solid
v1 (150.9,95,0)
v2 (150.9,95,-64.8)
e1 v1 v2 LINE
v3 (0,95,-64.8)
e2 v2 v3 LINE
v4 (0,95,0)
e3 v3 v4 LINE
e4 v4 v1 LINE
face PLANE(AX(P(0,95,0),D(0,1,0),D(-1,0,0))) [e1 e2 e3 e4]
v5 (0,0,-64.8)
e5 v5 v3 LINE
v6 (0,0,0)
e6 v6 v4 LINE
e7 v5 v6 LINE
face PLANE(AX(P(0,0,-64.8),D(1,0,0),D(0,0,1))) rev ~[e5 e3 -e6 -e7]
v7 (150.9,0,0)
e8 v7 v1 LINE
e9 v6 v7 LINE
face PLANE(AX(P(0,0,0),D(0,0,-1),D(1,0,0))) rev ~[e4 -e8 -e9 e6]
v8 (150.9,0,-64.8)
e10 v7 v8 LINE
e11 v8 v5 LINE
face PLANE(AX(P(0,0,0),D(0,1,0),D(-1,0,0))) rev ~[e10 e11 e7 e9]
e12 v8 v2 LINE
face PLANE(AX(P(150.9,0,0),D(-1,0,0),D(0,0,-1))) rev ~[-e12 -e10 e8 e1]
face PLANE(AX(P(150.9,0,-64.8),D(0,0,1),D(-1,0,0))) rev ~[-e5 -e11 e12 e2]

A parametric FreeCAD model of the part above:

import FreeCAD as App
import Part
import Sketcher
from FreeCAD import Vector

doc = App.newDocument("Part")
body = doc.addObject("PartDesign::Body", "Body")

sketch1 = body.newObject("Sketcher::SketchObject", "Sketch")
sketch1.AttachmentSupport = (doc.getObject("XZ_Plane"), [""])
sketch1.MapMode = "FlatFace"
sketch1.addGeometry([
    Part.LineSegment(Vector(0, -65, 0), Vector(0, 0, 0)),
    Part.LineSegment(Vector(0, 0, 0), Vector(151, 0, 0)),
    Part.LineSegment(Vector(151, 0, 0), Vector(151, -65, 0)),
    Part.LineSegment(Vector(151, -65, 0), Vector(0, -65, 0)),
], False)
sketch1.addConstraint([
    Sketcher.Constraint("Coincident", 0, 2, 1, 1),
    Sketcher.Constraint("Coincident", 1, 2, 2, 1),
    Sketcher.Constraint("Coincident", 2, 2, 3, 1),
    Sketcher.Constraint("Coincident", 3, 2, 0, 1),
    Sketcher.Constraint("Vertical", 0),
    Sketcher.Constraint("Horizontal", 1),
    Sketcher.Constraint("Vertical", 2),
    Sketcher.Constraint("Horizontal", 3),
    Sketcher.Constraint("Coincident", 0, 2, -1, 1),
    Sketcher.Constraint("DistanceX", 1, 1, 1, 2, 150.9),
    Sketcher.Constraint("DistanceY", 0, 1, 0, 2, 64.8),
])
pad1 = body.newObject("PartDesign::Pad", "Pad")
pad1.Profile = sketch1
pad1.Length = 95
pad1.Reversed = True

doc.recompute()
